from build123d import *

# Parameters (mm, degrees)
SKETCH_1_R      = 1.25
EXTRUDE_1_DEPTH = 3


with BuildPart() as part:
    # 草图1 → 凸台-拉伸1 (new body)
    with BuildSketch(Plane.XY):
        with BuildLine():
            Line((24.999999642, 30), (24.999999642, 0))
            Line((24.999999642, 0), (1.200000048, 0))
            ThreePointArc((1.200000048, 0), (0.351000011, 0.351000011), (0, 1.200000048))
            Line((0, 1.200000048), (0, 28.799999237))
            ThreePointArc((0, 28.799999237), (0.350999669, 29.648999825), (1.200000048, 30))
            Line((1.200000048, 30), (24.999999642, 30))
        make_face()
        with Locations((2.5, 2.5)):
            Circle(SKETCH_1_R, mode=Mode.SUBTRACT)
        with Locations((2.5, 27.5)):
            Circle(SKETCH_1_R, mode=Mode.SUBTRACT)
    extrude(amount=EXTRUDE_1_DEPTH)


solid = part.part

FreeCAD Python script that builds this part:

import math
import FreeCAD as App
import Part
import Sketcher

doc = App.newDocument("Part")
params = doc.addObject("Spreadsheet::Sheet", "Params")
for row, (alias, value) in enumerate([
    ("sketch1_diameter", "2.5 mm"),
    ("sketch1_height", "30 mm"),
    ("sketch1_width", "23.8 mm"),
    ("sketch1_height2", "27.599999 mm"),
    ("pad1_length", "3 mm"),
], start=1):
    params.set(f"A{row}", alias)
    params.set(f"B{row}", "=" + value)
    params.setAlias(f"B{row}", alias)

body = doc.addObject("PartDesign::Body", "Body")

# Sketch on XY plane
sketch1 = body.newObject("Sketcher::SketchObject", "Sketch")
sketch1.AttachmentSupport = (doc.getObject("XY_Plane"), [""])
sketch1.MapMode = "FlatFace"
sketch1.addGeometry(Part.LineSegment(App.Vector(25, 0, 0), App.Vector(25, 30, 0)), False)
sketch1.addGeometry(Part.LineSegment(App.Vector(25, 30, 0), App.Vector(1.2, 30, 0)), False)
sketch1.addGeometry(Part.ArcOfCircle(Part.Circle(App.Vector(1.2, 28.8, 0), App.Vector(0, 0, 1), 1.2), math.radians(90), math.radians(180)), False)
sketch1.addGeometry(Part.LineSegment(App.Vector(0, 28.8, 0), App.Vector(0, 1.2, 0)), False)
sketch1.addGeometry(Part.ArcOfCircle(Part.Circle(App.Vector(1.2, 1.2, 0), App.Vector(0, 0, 1), 1.2), math.radians(180), math.radians(270)), False)
sketch1.addGeometry(Part.LineSegment(App.Vector(1.2, 0, 0), App.Vector(25, 0, 0)), False)
sketch1.addGeometry(Part.Circle(App.Vector(2.5, 2.5, 0), App.Vector(0, 0, 1), 1.2), False)
sketch1.addGeometry(Part.Circle(App.Vector(2.5, 27.5, 0), App.Vector(0, 0, 1), 1.2), False)
sketch1.addConstraint(Sketcher.Constraint("Coincident", 0, 2, 1, 1))
sketch1.addConstraint(Sketcher.Constraint("Coincident", 1, 2, 2, 1))
sketch1.addConstraint(Sketcher.Constraint("Coincident", 2, 2, 3, 1))
sketch1.addConstraint(Sketcher.Constraint("Coincident", 3, 2, 4, 1))
sketch1.addConstraint(Sketcher.Constraint("Coincident", 4, 2, 5, 1))
sketch1.addConstraint(Sketcher.Constraint("Coincident", 5, 2, 0, 1))
sketch1.addConstraint(Sketcher.Constraint("Vertical", 0))
sketch1.addConstraint(Sketcher.Constraint("Horizontal", 1))
sketch1.addConstraint(Sketcher.Constraint("Vertical", 3))
sketch1.addConstraint(Sketcher.Constraint("Horizontal", 5))
sketch1.addConstraint(Sketcher.Constraint("Equal", 2, 4))
sketch1.addConstraint(Sketcher.Constraint("Equal", 6, 7))
sketch1.addConstraint(Sketcher.Constraint("PointOnObject", 2, 2, -2))
sketch1.addConstraint(Sketcher.Constraint("PointOnObject", 4, 2, -1))
sketch1.addConstraint(Sketcher.Constraint("Vertical", 6, 3, 7, 3))
sketch1.addConstraint(Sketcher.Constraint("Vertical", 1, 2, 4, 2))
sketch1.addConstraint(Sketcher.Constraint("Diameter", 6, 2.5))
sketch1.addConstraint(Sketcher.Constraint("DistanceY", 0, 1, 0, 2, 30.0))
sketch1.addConstraint(Sketcher.Constraint("DistanceX", 1, 2, 1, 1, 23.8))
sketch1.addConstraint(Sketcher.Constraint("DistanceY", 3, 2, 3, 1, 27.599999))
sketch1.addConstraint(Sketcher.Constraint("DistanceX", -1, 1, 0, 2, 25.0))
sketch1.addConstraint(Sketcher.Constraint("DistanceY", 6, 3, 7, 3, 25.0))
sketch1.addConstraint(Sketcher.Constraint("DistanceX", -1, 1, 6, 3, 2.5))
sketch1.addConstraint(Sketcher.Constraint("DistanceY", -1, 1, 6, 3, 2.5))
sketch1.addConstraint(Sketcher.Constraint("DistanceY", -1, 1, 2, 2, 28.799999))
sketch1.addConstraint(Sketcher.Constraint("Radius", 2, 1.198392))
sketch1.setExpression("Constraints[16]", "Params.sketch1_diameter")
sketch1.setExpression("Constraints[17]", "Params.sketch1_height")
sketch1.setExpression("Constraints[18]", "Params.sketch1_width")
sketch1.setExpression("Constraints[19]", "Params.sketch1_height2")
pad1 = body.newObject("PartDesign::Pad", "Pad")
pad1.Profile = sketch1
pad1.setExpression("Length", "Params.pad1_length")

doc.recompute()
